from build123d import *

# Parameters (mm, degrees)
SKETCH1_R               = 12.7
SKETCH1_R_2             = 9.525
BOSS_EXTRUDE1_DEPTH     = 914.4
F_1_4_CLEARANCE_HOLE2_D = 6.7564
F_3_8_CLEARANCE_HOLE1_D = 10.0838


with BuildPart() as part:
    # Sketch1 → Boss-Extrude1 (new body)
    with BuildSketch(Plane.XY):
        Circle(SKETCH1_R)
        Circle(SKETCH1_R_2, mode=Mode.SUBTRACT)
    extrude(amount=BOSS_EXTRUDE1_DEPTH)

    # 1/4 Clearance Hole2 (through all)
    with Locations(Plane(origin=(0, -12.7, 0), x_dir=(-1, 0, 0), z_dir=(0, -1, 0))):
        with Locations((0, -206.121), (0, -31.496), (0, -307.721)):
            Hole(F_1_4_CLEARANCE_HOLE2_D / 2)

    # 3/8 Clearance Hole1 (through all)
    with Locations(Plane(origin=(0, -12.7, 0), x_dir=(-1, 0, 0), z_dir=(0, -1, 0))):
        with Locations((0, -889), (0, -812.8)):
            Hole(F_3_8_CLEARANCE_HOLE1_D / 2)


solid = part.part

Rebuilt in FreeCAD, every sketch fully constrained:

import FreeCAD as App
import Part
import Sketcher
from FreeCAD import Vector
Q = App.Units.Quantity

doc = App.newDocument("Part")
body = doc.addObject("PartDesign::Body", "Body")

# Sketch on XY plane
sketch1 = body.newObject("Sketcher::SketchObject", "Sketch")
sketch1.AttachmentSupport = (doc.getObject("XY_Plane"), [""])
sketch1.MapMode = "FlatFace"
sketch1.addGeometry(Part.Circle(Vector(0, 0, 0), Vector(0, 0, 1), 13), False)
sketch1.addGeometry(Part.Circle(Vector(0, 0, 0), Vector(0, 0, 1), 10), False)
sketch1.addConstraint(Sketcher.Constraint("Coincident", 0, 3, -1, 1))
sketch1.addConstraint(Sketcher.Constraint("Coincident", 1, 3, -1, 1))
sketch1.addConstraint(Sketcher.Constraint("Diameter", 0, Q("1 in")))
sketch1.addConstraint(Sketcher.Constraint("Diameter", 1, Q("0.75 in")))
pad1 = body.newObject("PartDesign::Pad", "Pad")
pad1.Profile = sketch1
pad1.Length = Q("36 in")

# Sketch on XZ plane
sketch2 = body.newObject("Sketcher::SketchObject", "Sketch001")
sketch2.AttachmentSupport = (doc.getObject("XZ_Plane"), [""])
sketch2.MapMode = "FlatFace"
sketch2.AttachmentOffset = App.Placement(Vector(0, 0, 0.5 * 25.4), App.Rotation())
sketch2.addGeometry(Part.Circle(Vector(0, 206.1, 0), Vector(0, 0, 1), 3.4), False)
sketch2.addGeometry(Part.Circle(Vector(0, 31.5, 0), Vector(0, 0, 1), 3.4), False)
sketch2.addGeometry(Part.Circle(Vector(0, 307.7, 0), Vector(0, 0, 1), 3.4), False)
sketch2.addConstraint(Sketcher.Constraint("Equal", 0, 1))
sketch2.addConstraint(Sketcher.Constraint("Equal", 1, 2))
sketch2.addConstraint(Sketcher.Constraint("PointOnObject", 0, 3, -2))
sketch2.addConstraint(Sketcher.Constraint("PointOnObject", 1, 3, -2))
sketch2.addConstraint(Sketcher.Constraint("PointOnObject", 2, 3, -2))
sketch2.addConstraint(Sketcher.Constraint("Diameter", 0, Q("0.266 in")))
sketch2.addConstraint(Sketcher.Constraint("DistanceY", 0, 3, 2, 3, Q("4 in")))
sketch2.addConstraint(Sketcher.Constraint("DistanceY", -1, 1, 1, 3, Q("1.24 in")))
sketch2.addConstraint(Sketcher.Constraint("DistanceY", -1, 1, 0, 3, Q("8.115 in")))
doc.recompute()
hole = body.newObject("PartDesign::Hole", "Hole")
hole.Profile = sketch2
hole.ThreadType = "None"
hole.Diameter = Q("0.266 in")
hole.DepthType = "ThroughAll"

# Sketch on XZ plane
sketch3 = body.newObject("Sketcher::SketchObject", "Sketch002")
sketch3.AttachmentSupport = (doc.getObject("XZ_Plane"), [""])
sketch3.MapMode = "FlatFace"
sketch3.AttachmentOffset = App.Placement(Vector(0, 0, 0.5 * 25.4), App.Rotation())
sketch3.addGeometry(Part.Circle(Vector(0, 889, 0), Vector(0, 0, 1), 5), False)
sketch3.addGeometry(Part.Circle(Vector(0, 813, 0), Vector(0, 0, 1), 5), False)
sketch3.addConstraint(Sketcher.Constraint("Equal", 0, 1))
sketch3.addConstraint(Sketcher.Constraint("PointOnObject", 0, 3, -2))
sketch3.addConstraint(Sketcher.Constraint("PointOnObject", 1, 3, -2))
sketch3.addConstraint(Sketcher.Constraint("Diameter", 0, Q("0.397 in")))
sketch3.addConstraint(Sketcher.Constraint("DistanceY", -1, 1, 0, 3, Q("35 in")))
sketch3.addConstraint(Sketcher.Constraint("DistanceY", -1, 1, 1, 3, Q("32 in")))
doc.recompute()
hole2 = body.newObject("PartDesign::Hole", "Hole001")
hole2.Profile = sketch3
hole2.ThreadType = "None"
hole2.Diameter = Q("0.397 in")
hole2.DepthType = "ThroughAll"

doc.recompute()
